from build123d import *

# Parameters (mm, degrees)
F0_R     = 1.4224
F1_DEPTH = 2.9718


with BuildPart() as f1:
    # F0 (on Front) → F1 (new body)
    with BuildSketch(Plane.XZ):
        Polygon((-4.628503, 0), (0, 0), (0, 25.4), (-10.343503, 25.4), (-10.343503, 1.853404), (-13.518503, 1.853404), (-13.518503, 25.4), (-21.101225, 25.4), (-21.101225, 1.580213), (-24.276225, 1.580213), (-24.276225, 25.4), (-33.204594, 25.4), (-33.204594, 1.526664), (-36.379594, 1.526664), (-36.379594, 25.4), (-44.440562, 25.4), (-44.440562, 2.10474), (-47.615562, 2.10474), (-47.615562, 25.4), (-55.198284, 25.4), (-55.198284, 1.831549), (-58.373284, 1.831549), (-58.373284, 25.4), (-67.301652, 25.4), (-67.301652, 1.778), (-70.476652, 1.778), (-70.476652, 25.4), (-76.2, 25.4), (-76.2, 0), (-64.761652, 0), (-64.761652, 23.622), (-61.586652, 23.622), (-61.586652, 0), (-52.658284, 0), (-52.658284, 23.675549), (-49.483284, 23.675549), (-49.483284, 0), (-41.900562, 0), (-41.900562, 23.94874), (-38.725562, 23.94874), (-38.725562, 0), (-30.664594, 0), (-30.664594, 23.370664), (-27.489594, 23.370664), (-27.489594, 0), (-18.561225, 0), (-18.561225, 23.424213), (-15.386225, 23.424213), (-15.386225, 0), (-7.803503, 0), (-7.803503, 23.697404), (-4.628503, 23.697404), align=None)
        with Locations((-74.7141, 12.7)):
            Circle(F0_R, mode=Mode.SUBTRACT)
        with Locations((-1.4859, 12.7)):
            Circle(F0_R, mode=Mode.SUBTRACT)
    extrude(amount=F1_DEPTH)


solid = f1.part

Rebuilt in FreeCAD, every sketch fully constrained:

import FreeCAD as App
import Part
import Sketcher
from FreeCAD import Vector
Q = App.Units.Quantity

doc = App.newDocument("Part")
body = doc.addObject("PartDesign::Body", "Body")

sketch1 = body.newObject("Sketcher::SketchObject", "Sketch")
sketch1.AttachmentSupport = (doc.getObject("XZ_Plane"), [""])
sketch1.MapMode = "FlatFace"
sketch1.addGeometry([
    Part.LineSegment(Vector(-4.6, 0, 0), Vector(0, 0, 0)),
    Part.LineSegment(Vector(0, 0, 0), Vector(0, 25.4, 0)),
    Part.LineSegment(Vector(0, 25.4, 0), Vector(-10.3, 25.4, 0)),
    Part.LineSegment(Vector(-10.3, 25.4, 0), Vector(-10.3, 1.9, 0)),
    Part.LineSegment(Vector(-10.3, 1.9, 0), Vector(-13.5, 1.9, 0)),
    Part.LineSegment(Vector(-13.5, 1.9, 0), Vector(-13.5, 25.4, 0)),
    Part.LineSegment(Vector(-13.5, 25.4, 0), Vector(-21.1, 25.4, 0)),
    Part.LineSegment(Vector(-21.1, 25.4, 0), Vector(-21.1, 1.6, 0)),
    Part.LineSegment(Vector(-21.1, 1.6, 0), Vector(-24.3, 1.6, 0)),
    Part.LineSegment(Vector(-24.3, 1.6, 0), Vector(-24.3, 25.4, 0)),
    Part.LineSegment(Vector(-24.3, 25.4, 0), Vector(-33.2, 25.4, 0)),
    Part.LineSegment(Vector(-33.2, 25.4, 0), Vector(-33.2, 1.5, 0)),
    Part.LineSegment(Vector(-33.2, 1.5, 0), Vector(-36.4, 1.5, 0)),
    Part.LineSegment(Vector(-36.4, 1.5, 0), Vector(-36.4, 25.4, 0)),
    Part.LineSegment(Vector(-36.4, 25.4, 0), Vector(-44.4, 25.4, 0)),
    Part.LineSegment(Vector(-44.4, 25.4, 0), Vector(-44.4, 2.1, 0)),
    Part.LineSegment(Vector(-44.4, 2.1, 0), Vector(-47.6, 2.1, 0)),
    Part.LineSegment(Vector(-47.6, 2.1, 0), Vector(-47.6, 25.4, 0)),
    Part.LineSegment(Vector(-47.6, 25.4, 0), Vector(-55.2, 25.4, 0)),
    Part.LineSegment(Vector(-55.2, 25.4, 0), Vector(-55.2, 1.8, 0)),
    Part.LineSegment(Vector(-55.2, 1.8, 0), Vector(-58.4, 1.8, 0)),
    Part.LineSegment(Vector(-58.4, 1.8, 0), Vector(-58.4, 25.4, 0)),
    Part.LineSegment(Vector(-58.4, 25.4, 0), Vector(-67.3, 25.4, 0)),
    Part.LineSegment(Vector(-67.3, 25.4, 0), Vector(-67.3, 1.8, 0)),
    Part.LineSegment(Vector(-67.3, 1.8, 0), Vector(-70.5, 1.8, 0)),
    Part.LineSegment(Vector(-70.5, 1.8, 0), Vector(-70.5, 25.4, 0)),
    Part.LineSegment(Vector(-70.5, 25.4, 0), Vector(-76.2, 25.4, 0)),
    Part.LineSegment(Vector(-76.2, 25.4, 0), Vector(-76.2, 0, 0)),
    Part.LineSegment(Vector(-76.2, 0, 0), Vector(-64.8, 0, 0)),
    Part.LineSegment(Vector(-64.8, 0, 0), Vector(-64.8, 23.6, 0)),
    Part.LineSegment(Vector(-64.8, 23.6, 0), Vector(-61.6, 23.6, 0)),
    Part.LineSegment(Vector(-61.6, 23.6, 0), Vector(-61.6, 0, 0)),
    Part.LineSegment(Vector(-61.6, 0, 0), Vector(-52.7, 0, 0)),
    Part.LineSegment(Vector(-52.7, 0, 0), Vector(-52.7, 23.7, 0)),
    Part.LineSegment(Vector(-52.7, 23.7, 0), Vector(-49.5, 23.7, 0)),
    Part.LineSegment(Vector(-49.5, 23.7, 0), Vector(-49.5, 0, 0)),
    Part.LineSegment(Vector(-49.5, 0, 0), Vector(-41.9, 0, 0)),
    Part.LineSegment(Vector(-41.9, 0, 0), Vector(-41.9, 23.9, 0)),
    Part.LineSegment(Vector(-41.9, 23.9, 0), Vector(-38.7, 23.9, 0)),
    Part.LineSegment(Vector(-38.7, 23.9, 0), Vector(-38.7, 0, 0)),
    Part.LineSegment(Vector(-38.7, 0, 0), Vector(-30.7, 0, 0)),
    Part.LineSegment(Vector(-30.7, 0, 0), Vector(-30.7, 23.4, 0)),
    Part.LineSegment(Vector(-30.7, 23.4, 0), Vector(-27.5, 23.4, 0)),
    Part.LineSegment(Vector(-27.5, 23.4, 0), Vector(-27.5, 0, 0)),
    Part.LineSegment(Vector(-27.5, 0, 0), Vector(-18.6, 0, 0)),
    Part.LineSegment(Vector(-18.6, 0, 0), Vector(-18.6, 23.4, 0)),
    Part.LineSegment(Vector(-18.6, 23.4, 0), Vector(-15.4, 23.4, 0)),
    Part.LineSegment(Vector(-15.4, 23.4, 0), Vector(-15.4, 0, 0)),
    Part.LineSegment(Vector(-15.4, 0, 0), Vector(-7.8, 0, 0)),
    Part.LineSegment(Vector(-7.8, 0, 0), Vector(-7.8, 23.7, 0)),
    Part.LineSegment(Vector(-7.8, 23.7, 0), Vector(-4.6, 23.7, 0)),
    Part.LineSegment(Vector(-4.6, 23.7, 0), Vector(-4.6, 0, 0)),
    Part.Circle(Vector(-74.7, 12.7, 0), Vector(0, 0, 1), 1.4),
    Part.Circle(Vector(-1.5, 12.7, 0), Vector(0, 0, 1), 1.4),
], False)
sketch1.addConstraint([
    Sketcher.Constraint("Coincident", 0, 2, 1, 1),
    Sketcher.Constraint("Coincident", 1, 2, 2, 1),
    Sketcher.Constraint("Coincident", 2, 2, 3, 1),
    Sketcher.Constraint("Coincident", 3, 2, 4, 1),
    Sketcher.Constraint("Coincident", 4, 2, 5, 1),
    Sketcher.Constraint("Coincident", 5, 2, 6, 1),
    Sketcher.Constraint("Coincident", 6, 2, 7, 1),
    Sketcher.Constraint("Coincident", 7, 2, 8, 1),
    Sketcher.Constraint("Coincident", 8, 2, 9, 1),
    Sketcher.Constraint("Coincident", 9, 2, 10, 1),
    Sketcher.Constraint("Coincident", 10, 2, 11, 1),
    Sketcher.Constraint("Coincident", 11, 2, 12, 1),
    Sketcher.Constraint("Coincident", 12, 2, 13, 1),
    Sketcher.Constraint("Coincident", 13, 2, 14, 1),
    Sketcher.Constraint("Coincident", 14, 2, 15, 1),
    Sketcher.Constraint("Coincident", 15, 2, 16, 1),
    Sketcher.Constraint("Coincident", 16, 2, 17, 1),
    Sketcher.Constraint("Coincident", 17, 2, 18, 1),
    Sketcher.Constraint("Coincident", 18, 2, 19, 1),
    Sketcher.Constraint("Coincident", 19, 2, 20, 1),
    Sketcher.Constraint("Coincident", 20, 2, 21, 1),
    Sketcher.Constraint("Coincident", 21, 2, 22, 1),
    Sketcher.Constraint("Coincident", 22, 2, 23, 1),
    Sketcher.Constraint("Coincident", 23, 2, 24, 1),
    Sketcher.Constraint("Coincident", 24, 2, 25, 1),
    Sketcher.Constraint("Coincident", 25, 2, 26, 1),
    Sketcher.Constraint("Coincident", 26, 2, 27, 1),
    Sketcher.Constraint("Coincident", 27, 2, 28, 1),
    Sketcher.Constraint("Coincident", 28, 2, 29, 1),
    Sketcher.Constraint("Coincident", 29, 2, 30, 1),
    Sketcher.Constraint("Coincident", 30, 2, 31, 1),
    Sketcher.Constraint("Coincident", 31, 2, 32, 1),
    Sketcher.Constraint("Coincident", 32, 2, 33, 1),
    Sketcher.Constraint("Coincident", 33, 2, 34, 1),
    Sketcher.Constraint("Coincident", 34, 2, 35, 1),
    Sketcher.Constraint("Coincident", 35, 2, 36, 1),
    Sketcher.Constraint("Coincident", 36, 2, 37, 1),
    Sketcher.Constraint("Coincident", 37, 2, 38, 1),
    Sketcher.Constraint("Coincident", 38, 2, 39, 1),
    Sketcher.Constraint("Coincident", 39, 2, 40, 1),
    Sketcher.Constraint("Coincident", 40, 2, 41, 1),
    Sketcher.Constraint("Coincident", 41, 2, 42, 1),
    Sketcher.Constraint("Coincident", 42, 2, 43, 1),
    Sketcher.Constraint("Coincident", 43, 2, 44, 1),
    Sketcher.Constraint("Coincident", 44, 2, 45, 1),
    Sketcher.Constraint("Coincident", 45, 2, 46, 1),
    Sketcher.Constraint("Coincident", 46, 2, 47, 1),
    Sketcher.Constraint("Coincident", 47, 2, 48, 1),
    Sketcher.Constraint("Coincident", 48, 2, 49, 1),
    Sketcher.Constraint("Coincident", 49, 2, 50, 1),
    Sketcher.Constraint("Coincident", 50, 2, 51, 1),
    Sketcher.Constraint("Coincident", 51, 2, 0, 1),
    Sketcher.Constraint("Horizontal", 0),
    Sketcher.Constraint("Vertical", 1),
    Sketcher.Constraint("Horizontal", 2),
    Sketcher.Constraint("Vertical", 3),
    Sketcher.Constraint("Horizontal", 4),
    Sketcher.Constraint("Vertical", 5),
    Sketcher.Constraint("Horizontal", 6),
    Sketcher.Constraint("Vertical", 7),
    Sketcher.Constraint("Horizontal", 8),
    Sketcher.Constraint("Vertical", 9),
    Sketcher.Constraint("Horizontal", 10),
    Sketcher.Constraint("Vertical", 11),
    Sketcher.Constraint("Horizontal", 12),
    Sketcher.Constraint("Vertical", 13),
    Sketcher.Constraint("Horizontal", 14),
    Sketcher.Constraint("Vertical", 15),
    Sketcher.Constraint("Horizontal", 16),
    Sketcher.Constraint("Vertical", 17),
    Sketcher.Constraint("Horizontal", 18),
    Sketcher.Constraint("Vertical", 19),
    Sketcher.Constraint("Horizontal", 20),
    Sketcher.Constraint("Vertical", 21),
    Sketcher.Constraint("Horizontal", 22),
    Sketcher.Constraint("Vertical", 23),
    Sketcher.Constraint("Horizontal", 24),
    Sketcher.Constraint("Vertical", 25),
    Sketcher.Constraint("Horizontal", 26),
    Sketcher.Constraint("Vertical", 27),
    Sketcher.Constraint("Horizontal", 28),
    Sketcher.Constraint("Vertical", 29),
    Sketcher.Constraint("Horizontal", 30),
    Sketcher.Constraint("Vertical", 31),
    Sketcher.Constraint("Horizontal", 32),
    Sketcher.Constraint("Vertical", 33),
    Sketcher.Constraint("Horizontal", 34),
    Sketcher.Constraint("Vertical", 35),
    Sketcher.Constraint("Horizontal", 36),
    Sketcher.Constraint("Vertical", 37),
    Sketcher.Constraint("Horizontal", 38),
    Sketcher.Constraint("Vertical", 39),
    Sketcher.Constraint("Horizontal", 40),
    Sketcher.Constraint("Vertical", 41),
    Sketcher.Constraint("Horizontal", 42),
    Sketcher.Constraint("Vertical", 43),
    Sketcher.Constraint("Horizontal", 44),
    Sketcher.Constraint("Vertical", 45),
    Sketcher.Constraint("Horizontal", 46),
    Sketcher.Constraint("Vertical", 47),
    Sketcher.Constraint("Horizontal", 48),
    Sketcher.Constraint("Vertical", 49),
    Sketcher.Constraint("Horizontal", 50),
    Sketcher.Constraint("Vertical", 51),
    Sketcher.Constraint("Coincident", 0, 2, -1, 1),
    Sketcher.Constraint("Equal", 52, 53),
    Sketcher.Constraint("PointOnObject", 27, 2, -1),
    Sketcher.Constraint("PointOnObject", 31, 2, -1),
    Sketcher.Constraint("PointOnObject", 35, 2, -1),
    Sketcher.Constraint("PointOnObject", 39, 2, -1),
    Sketcher.Constraint("PointOnObject", 43, 2, -1),
    Sketcher.Constraint("PointOnObject", 47, 2, -1),
    Sketcher.Constraint("Horizontal", 52, 3, 53, 3),
    Sketcher.Constraint("Horizontal", 2, 2, 5, 2),
    Sketcher.Constraint("Horizontal", 6, 2, 9, 2),
    Sketcher.Constraint("Horizontal", 10, 2, 13, 2),
    Sketcher.Constraint("Horizontal", 14, 2, 17, 2),
    Sketcher.Constraint("Horizontal", 18, 2, 21, 2),
    Sketcher.Constraint("Horizontal", 22, 2, 25, 2),
    Sketcher.Constraint("Equal", 4, 8),
    Sketcher.Constraint("Equal", 8, 12),
    Sketcher.Constraint("Equal", 12, 16),
    Sketcher.Constraint("Equal", 6, 18),
    Sketcher.Constraint("Equal", 16, 20),
    Sketcher.Constraint("Equal", 10, 22),
    Sketcher.Constraint("Equal", 20, 24),
    Sketcher.Constraint("Equal", 24, 30),
    Sketcher.Constraint("Equal", 22, 32),
    Sketcher.Constraint("Equal", 30, 34),
    Sketcher.Constraint("Equal", 18, 36),
    Sketcher.Constraint("Equal", 34, 38),
    Sketcher.Constraint("Equal", 14, 40),
    Sketcher.Constraint("Equal", 38, 42),
    Sketcher.Constraint("Equal", 32, 44),
    Sketcher.Constraint("Equal", 42, 46),
    Sketcher.Constraint("Equal", 36, 48),
    Sketcher.Constraint("Equal", 46, 50),
    Sketcher.Constraint("Equal", 25, 29),
    Sketcher.Constraint("DistanceY", 1, 1, 1, 2, Q("1 in")),
    Sketcher.Constraint("Diameter", 52, Q("0.112 in")),
    Sketcher.Constraint("DistanceX", 26, 2, -1, 1, Q("3 in")),
    Sketcher.Constraint("DistanceY", 23, 2, 23, 1, Q("0.93 in")),
    Sketcher.Constraint("DistanceY", -1, 1, 52, 3, Q("0.5 in")),
    Sketcher.Constraint("DistanceX", 23, 2, 28, 2, Q("0.1 in")),
    Sketcher.Constraint("DistanceX", 4, 2, 4, 1, Q("0.125 in")),
    Sketcher.Constraint("DistanceX", 52, 3, 53, 3, Q("2.883 in")),
    Sketcher.Constraint("DistanceX", 52, 3, -1, 1, Q("2.9415 in")),
    Sketcher.Constraint("DistanceX", 6, 2, 6, 1, Q("7.582722 mm")),
    Sketcher.Constraint("DistanceX", 10, 2, 10, 1, Q("8.928369 mm")),
    Sketcher.Constraint("DistanceX", 14, 2, 14, 1, Q("8.060968 mm")),
    Sketcher.Constraint("DistanceX", 26, 2, 26, 1, Q("5.723348 mm")),
    Sketcher.Constraint("DistanceY", 15, 2, 15, 1, Q("23.29526 mm")),
    Sketcher.Constraint("DistanceY", 19, 2, 19, 1, Q("23.568451 mm")),
    Sketcher.Constraint("DistanceY", 33, 1, 33, 2, Q("23.675549 mm")),
    Sketcher.Constraint("DistanceY", 37, 1, 37, 2, Q("23.94874 mm")),
    Sketcher.Constraint("DistanceY", 3, 2, 3, 1, Q("23.546596 mm")),
    Sketcher.Constraint("DistanceY", 7, 2, 7, 1, Q("23.819787 mm")),
    Sketcher.Constraint("DistanceY", 11, 2, 11, 1, Q("23.873336 mm")),
    Sketcher.Constraint("DistanceY", 41, 1, 41, 2, Q("23.370664 mm")),
    Sketcher.Constraint("DistanceY", 45, 1, 45, 2, Q("23.424213 mm")),
    Sketcher.Constraint("DistanceY", 49, 1, 49, 2, Q("23.697404 mm")),
])
pad1 = body.newObject("PartDesign::Pad", "Pad")
pad1.Profile = sketch1
pad1.Length = Q("0.117 in")

doc.recompute()
